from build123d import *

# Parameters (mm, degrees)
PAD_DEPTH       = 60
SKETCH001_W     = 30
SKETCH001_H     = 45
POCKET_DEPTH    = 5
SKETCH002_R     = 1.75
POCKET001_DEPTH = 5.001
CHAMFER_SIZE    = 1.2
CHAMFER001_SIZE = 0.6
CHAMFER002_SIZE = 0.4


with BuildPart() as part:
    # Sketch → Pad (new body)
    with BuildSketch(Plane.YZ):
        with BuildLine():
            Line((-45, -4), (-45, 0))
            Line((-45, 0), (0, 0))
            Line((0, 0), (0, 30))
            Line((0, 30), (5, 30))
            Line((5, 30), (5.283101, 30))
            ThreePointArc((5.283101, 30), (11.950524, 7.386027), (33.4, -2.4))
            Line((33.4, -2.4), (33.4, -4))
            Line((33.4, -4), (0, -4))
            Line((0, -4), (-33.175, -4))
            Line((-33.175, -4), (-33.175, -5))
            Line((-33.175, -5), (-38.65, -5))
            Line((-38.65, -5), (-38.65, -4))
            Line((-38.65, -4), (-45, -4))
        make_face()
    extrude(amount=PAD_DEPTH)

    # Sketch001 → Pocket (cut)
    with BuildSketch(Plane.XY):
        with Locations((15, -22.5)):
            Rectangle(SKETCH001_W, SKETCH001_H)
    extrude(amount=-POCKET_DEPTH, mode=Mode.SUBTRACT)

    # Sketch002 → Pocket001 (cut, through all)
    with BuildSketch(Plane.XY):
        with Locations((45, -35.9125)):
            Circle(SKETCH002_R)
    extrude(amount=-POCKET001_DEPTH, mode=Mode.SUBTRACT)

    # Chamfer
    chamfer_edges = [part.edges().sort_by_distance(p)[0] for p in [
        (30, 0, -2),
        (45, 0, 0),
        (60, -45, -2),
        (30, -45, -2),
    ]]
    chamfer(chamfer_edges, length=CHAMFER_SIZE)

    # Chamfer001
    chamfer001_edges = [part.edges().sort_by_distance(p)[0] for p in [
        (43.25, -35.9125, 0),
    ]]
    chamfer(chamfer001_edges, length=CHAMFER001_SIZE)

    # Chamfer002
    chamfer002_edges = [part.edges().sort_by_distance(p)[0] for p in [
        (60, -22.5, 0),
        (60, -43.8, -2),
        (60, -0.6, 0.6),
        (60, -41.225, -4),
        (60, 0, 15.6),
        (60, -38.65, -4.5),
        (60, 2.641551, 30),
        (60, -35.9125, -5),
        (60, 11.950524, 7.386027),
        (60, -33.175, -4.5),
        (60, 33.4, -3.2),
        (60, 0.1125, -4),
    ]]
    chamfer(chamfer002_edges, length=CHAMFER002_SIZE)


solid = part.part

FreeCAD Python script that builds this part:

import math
import FreeCAD as App
import Part
import Sketcher

V = App.Vector


def edges_at(feature, points):
    """Names of the edges that pass closest to the given points."""
    edges = feature.Shape.Edges
    near = lambda p: min(range(len(edges)), key=lambda i: edges[i].distToShape(Part.Vertex(*p))[0])
    return sorted({f"Edge{near(p) + 1}" for p in points})


def add_polygon(sketch, points):
    """Adds a closed chain of lines whose ends are joined by coincident constraints."""
    first, n = sketch.GeometryCount, len(points)
    for a, b in zip(points, points[1:] + points[:1]):
        sketch.addGeometry(Part.LineSegment(App.Vector(*a, 0), App.Vector(*b, 0)), False)
    for i in range(n):
        sketch.addConstraint(Sketcher.Constraint("Coincident", first + i, 2, first + (i + 1) % n, 1))

doc = App.newDocument("Part")
body = doc.addObject("PartDesign::Body", "Body")

sketch1 = doc.addObject("Sketcher::SketchObject", "Sketch")
body.addObject(sketch1)
sketch1.AttachmentSupport = (doc.YZ_Plane, [""])
sketch1.MapMode = "FlatFace"
sketch1.addGeometry(Part.LineSegment(V(-45, 0, 0), V(-45, -4, 0)), False)
sketch1.addGeometry(Part.LineSegment(V(-45, -4, 0), V(-38.6, -4, 0)), False)
sketch1.addGeometry(Part.LineSegment(V(-38.6, -4, 0), V(-38.6, -5, 0)), False)
sketch1.addGeometry(Part.LineSegment(V(-38.6, -5, 0), V(-33.2, -5, 0)), False)
sketch1.addGeometry(Part.LineSegment(V(-33.2, -5, 0), V(-33.2, -4, 0)), False)
sketch1.addGeometry(Part.LineSegment(V(-33.2, -4, 0), V(33.4, -4, 0)), False)
sketch1.addGeometry(Part.LineSegment(V(33.4, -4, 0), V(33.4, -2.4, 0)), False)
sketch1.addGeometry(Part.ArcOfCircle(Part.Circle(V(33.4, 26, 0), V(0, 0, 1), 28.4), math.radians(172), math.radians(270)), False)
sketch1.addGeometry(Part.LineSegment(V(5.3, 30, 0), V(0, 30, 0)), False)
sketch1.addGeometry(Part.LineSegment(V(0, 30, 0), V(0, 0, 0)), False)
sketch1.addGeometry(Part.LineSegment(V(0, 0, 0), V(-45, 0, 0)), False)
sketch1.addConstraint(Sketcher.Constraint("Coincident", 0, 2, 1, 1))
sketch1.addConstraint(Sketcher.Constraint("Coincident", 1, 2, 2, 1))
sketch1.addConstraint(Sketcher.Constraint("Coincident", 2, 2, 3, 1))
sketch1.addConstraint(Sketcher.Constraint("Coincident", 3, 2, 4, 1))
sketch1.addConstraint(Sketcher.Constraint("Coincident", 4, 2, 5, 1))
sketch1.addConstraint(Sketcher.Constraint("Coincident", 5, 2, 6, 1))
sketch1.addConstraint(Sketcher.Constraint("Coincident", 6, 2, 7, 2))
sketch1.addConstraint(Sketcher.Constraint("Coincident", 7, 1, 8, 1))
sketch1.addConstraint(Sketcher.Constraint("Coincident", 8, 2, 9, 1))
sketch1.addConstraint(Sketcher.Constraint("Coincident", 9, 2, 10, 1))
sketch1.addConstraint(Sketcher.Constraint("Coincident", 10, 2, 0, 1))
sketch1.addConstraint(Sketcher.Constraint("Vertical", 0))
sketch1.addConstraint(Sketcher.Constraint("Horizontal", 1))
sketch1.addConstraint(Sketcher.Constraint("Vertical", 2))
sketch1.addConstraint(Sketcher.Constraint("Horizontal", 3))
sketch1.addConstraint(Sketcher.Constraint("Vertical", 4))
sketch1.addConstraint(Sketcher.Constraint("Horizontal", 5))
sketch1.addConstraint(Sketcher.Constraint("Vertical", 6))
sketch1.addConstraint(Sketcher.Constraint("Horizontal", 8))
sketch1.addConstraint(Sketcher.Constraint("Vertical", 9))
sketch1.addConstraint(Sketcher.Constraint("Horizontal", 10))
sketch1.addConstraint(Sketcher.Constraint("Coincident", 9, 2, -1, 1))
sketch1.addConstraint(Sketcher.Constraint("Horizontal", 1, 2, 4, 2))
sketch1.addConstraint(Sketcher.Constraint("Vertical", 7, 3, 5, 2))
sketch1.addConstraint(Sketcher.Constraint("Radius", 7, 28.4))
sketch1.addConstraint(Sketcher.Constraint("DistanceX", 10, 2, 10, 1, 45.0))
sketch1.addConstraint(Sketcher.Constraint("DistanceY", 0, 2, 0, 1, 4.0))
sketch1.addConstraint(Sketcher.Constraint("DistanceY", 2, 2, 2, 1, 1.0))
sketch1.addConstraint(Sketcher.Constraint("DistanceY", 9, 2, 9, 1, 30.0))
sketch1.addConstraint(Sketcher.Constraint("DistanceY", 6, 1, 6, 2, 1.6))
sketch1.addConstraint(Sketcher.Constraint("DistanceX", 1, 1, 1, 2, 6.35))
sketch1.addConstraint(Sketcher.Constraint("DistanceX", -1, 1, 7, 3, 33.4))
sketch1.addConstraint(Sketcher.Constraint("DistanceX", 3, 1, 3, 2, 5.475))
pad1 = doc.addObject("PartDesign::Pad", "Pad")
body.addObject(pad1)
pad1.Profile = sketch1
pad1.Length = 60

sketch2 = doc.addObject("Sketcher::SketchObject", "Sketch001")
body.addObject(sketch2)
sketch2.AttachmentSupport = (doc.XY_Plane, [""])
sketch2.MapMode = "FlatFace"
add_polygon(sketch2, [(0, 0), (0, -45), (30, -45), (30, 0)])
sketch2.addConstraint(Sketcher.Constraint("Vertical", 0))
sketch2.addConstraint(Sketcher.Constraint("Horizontal", 1))
sketch2.addConstraint(Sketcher.Constraint("Vertical", 2))
sketch2.addConstraint(Sketcher.Constraint("Horizontal", 3))
sketch2.addConstraint(Sketcher.Constraint("Coincident", 3, 2, -1, 1))
sketch2.addConstraint(Sketcher.Constraint("DistanceX", 1, 1, 1, 2, 30.0))
sketch2.addConstraint(Sketcher.Constraint("DistanceY", 0, 2, 0, 1, 45.0))
pocket1 = doc.addObject("PartDesign::Pocket", "Pocket")
body.addObject(pocket1)
pocket1.Profile = sketch2
pocket1.Length = 5

sketch3 = doc.addObject("Sketcher::SketchObject", "Sketch002")
body.addObject(sketch3)
sketch3.AttachmentSupport = (doc.XY_Plane, [""])
sketch3.MapMode = "FlatFace"
sketch3.addGeometry(Part.Circle(V(45, -35.9, 0), V(0, 0, 1), 1.8), False)
sketch3.addConstraint(Sketcher.Constraint("Diameter", 0, 3.5))
sketch3.addConstraint(Sketcher.Constraint("DistanceX", -1, 1, 0, 3, 45.0))
sketch3.addConstraint(Sketcher.Constraint("DistanceY", 0, 3, -1, 1, 35.9125))
pocket2 = doc.addObject("PartDesign::Pocket", "Pocket001")
body.addObject(pocket2)
pocket2.Profile = sketch3
pocket2.Type = "ThroughAll"
doc.recompute()

chamfer = doc.addObject("PartDesign::Chamfer", "Chamfer")
body.addObject(chamfer)
chamfer.Base = (pocket2, edges_at(pocket2, [
    (30, 0, -2),
    (45, 0, 0),
    (60, -45, -2),
    (30, -45, -2),
]))
chamfer.Size = 1.2
doc.recompute()

chamfer2 = doc.addObject("PartDesign::Chamfer", "Chamfer001")
body.addObject(chamfer2)
chamfer2.Base = (chamfer, edges_at(chamfer, [(43.25, -35.913, 0)]))
chamfer2.Size = 0.6
doc.recompute()

chamfer3 = doc.addObject("PartDesign::Chamfer", "Chamfer002")
body.addObject(chamfer3)
chamfer3.Base = (chamfer2, edges_at(chamfer2, [
    (60, -22.5, 0),
    (60, -43.8, -2),
    (60, -0.6, 0.6),
    (60, -41.225, -4),
    (60, 0, 15.6),
    (60, -38.65, -4.5),
    (60, 2.642, 30),
    (60, -35.913, -5),
    (60, 11.951, 7.386),
    (60, -33.175, -4.5),
    (60, 33.4, -3.2),
    (60, 0.113, -4),
]))
chamfer3.Size = 0.4

doc.recompute()
